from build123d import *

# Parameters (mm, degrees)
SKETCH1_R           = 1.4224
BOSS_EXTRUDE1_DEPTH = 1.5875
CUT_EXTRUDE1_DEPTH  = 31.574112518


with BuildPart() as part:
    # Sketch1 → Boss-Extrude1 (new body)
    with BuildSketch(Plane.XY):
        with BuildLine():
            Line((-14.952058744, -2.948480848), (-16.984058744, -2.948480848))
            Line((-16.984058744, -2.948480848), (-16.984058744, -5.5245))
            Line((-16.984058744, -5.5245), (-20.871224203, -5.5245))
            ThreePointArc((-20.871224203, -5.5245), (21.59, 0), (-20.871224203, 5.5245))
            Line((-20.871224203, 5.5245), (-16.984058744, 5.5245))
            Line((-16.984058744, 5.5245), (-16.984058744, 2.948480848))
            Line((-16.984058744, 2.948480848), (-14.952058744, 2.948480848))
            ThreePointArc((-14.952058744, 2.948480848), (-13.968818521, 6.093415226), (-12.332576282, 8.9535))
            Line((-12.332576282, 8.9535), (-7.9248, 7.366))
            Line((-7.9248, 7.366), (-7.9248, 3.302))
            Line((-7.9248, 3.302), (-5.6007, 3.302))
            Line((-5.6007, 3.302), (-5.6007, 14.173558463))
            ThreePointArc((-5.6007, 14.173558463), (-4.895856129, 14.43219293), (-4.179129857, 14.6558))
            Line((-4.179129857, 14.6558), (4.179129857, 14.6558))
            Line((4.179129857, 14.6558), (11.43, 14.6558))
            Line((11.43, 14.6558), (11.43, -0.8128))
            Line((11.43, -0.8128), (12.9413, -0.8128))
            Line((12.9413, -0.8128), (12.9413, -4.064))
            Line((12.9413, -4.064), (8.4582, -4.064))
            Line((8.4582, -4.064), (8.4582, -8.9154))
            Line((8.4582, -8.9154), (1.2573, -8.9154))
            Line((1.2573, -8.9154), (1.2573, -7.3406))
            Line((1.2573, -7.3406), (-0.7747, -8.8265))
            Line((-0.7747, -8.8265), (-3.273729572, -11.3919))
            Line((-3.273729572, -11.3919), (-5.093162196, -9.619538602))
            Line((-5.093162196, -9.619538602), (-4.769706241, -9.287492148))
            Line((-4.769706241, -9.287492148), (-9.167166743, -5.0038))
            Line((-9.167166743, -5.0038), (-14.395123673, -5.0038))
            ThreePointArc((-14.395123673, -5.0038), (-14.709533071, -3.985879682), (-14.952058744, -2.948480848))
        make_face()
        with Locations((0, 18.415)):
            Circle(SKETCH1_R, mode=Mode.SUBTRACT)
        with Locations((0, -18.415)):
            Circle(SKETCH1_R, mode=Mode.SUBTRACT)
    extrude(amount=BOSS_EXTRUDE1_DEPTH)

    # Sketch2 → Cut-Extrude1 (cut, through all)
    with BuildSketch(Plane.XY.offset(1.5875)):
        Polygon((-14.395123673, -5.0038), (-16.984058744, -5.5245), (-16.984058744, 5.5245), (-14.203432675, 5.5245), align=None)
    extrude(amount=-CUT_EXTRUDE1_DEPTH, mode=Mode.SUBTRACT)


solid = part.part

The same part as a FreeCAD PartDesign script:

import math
import FreeCAD as App
import Part
import Sketcher
from FreeCAD import Vector
Q = App.Units.Quantity


def add_polygon(sketch, points):
    """Adds a closed chain of lines whose ends are joined by coincident constraints."""
    first, n = sketch.GeometryCount, len(points)
    for a, b in zip(points, points[1:] + points[:1]):
        sketch.addGeometry(Part.LineSegment(App.Vector(*a, 0), App.Vector(*b, 0)), False)
    for i in range(n):
        sketch.addConstraint(Sketcher.Constraint("Coincident", first + i, 2, first + (i + 1) % n, 1))

doc = App.newDocument("Part")
params = doc.addObject("Spreadsheet::Sheet", "Params")
for row, (alias, value) in enumerate([
    ("sketch1_radius", "0.6 in"),
    ("sketch1_radius2", "0.85 in"),
    ("sketch1_diameter", "0.112 in"),
    ("sketch1_length", "0.1 in"),
    ("sketch1_width", "0.08 in"),
    ("pad1_length", "0.0625 in"),
    ("sketch2_height", "0.435 in"),
], start=1):
    params.set(f"A{row}", alias)
    params.set(f"B{row}", "=" + value)
    params.setAlias(f"B{row}", alias)

body = doc.addObject("PartDesign::Body", "Body")

# Sketch on XY plane
sketch1 = body.newObject("Sketcher::SketchObject", "Sketch")
sketch1.AttachmentSupport = (doc.getObject("XY_Plane"), [""])
sketch1.MapMode = "FlatFace"
sketch1.addGeometry([
    Part.LineSegment(Vector(-14.952059, -2.948481, 0), Vector(-16.984059, -2.948481, 0)),  # 0
    Part.LineSegment(Vector(-16.984059, -2.948481, 0), Vector(-16.984059, -5.5245, 0)),  # 1
    Part.LineSegment(Vector(-16.984059, -5.5245, 0), Vector(-20.871224, -5.5245, 0)),  # 2
    Part.ArcOfCircle(Part.Circle(Vector(0, 0, 0), Vector(0, 0, 1), 21.59), math.radians(-165.174125), math.radians(165.174125)),  # 3
    Part.LineSegment(Vector(-20.871224, 5.5245, 0), Vector(-16.984059, 5.5245, 0)),  # 4
    Part.LineSegment(Vector(-16.984059, 5.5245, 0), Vector(-16.984059, 2.948481, 0)),  # 5
    Part.LineSegment(Vector(-16.984059, 2.948481, 0), Vector(-14.952059, 2.948481, 0)),  # 6
    Part.ArcOfCircle(Part.Circle(Vector(0, 0, 0), Vector(0, 0, 1), 15.24), math.radians(144.020199), math.radians(168.844648)),  # 7
    Part.LineSegment(Vector(-12.332576, 8.9535, 0), Vector(-7.9248, 7.366, 0)),  # 8
    Part.LineSegment(Vector(-7.9248, 7.366, 0), Vector(-7.9248, 3.302, 0)),  # 9
    Part.LineSegment(Vector(-7.9248, 3.302, 0), Vector(-5.6007, 3.302, 0)),  # 10
    Part.LineSegment(Vector(-5.6007, 3.302, 0), Vector(-5.6007, 14.173558, 0)),  # 11
    Part.ArcOfCircle(Part.Circle(Vector(0, 0, 0), Vector(0, 0, 1), 15.24), math.radians(105.915603), math.radians(111.561518)),  # 12
    Part.LineSegment(Vector(-4.17913, 14.6558, 0), Vector(11.43, 14.6558, 0)),  # 13
    Part.LineSegment(Vector(11.43, 14.6558, 0), Vector(11.43, -0.8128, 0)),  # 14
    Part.LineSegment(Vector(11.43, -0.8128, 0), Vector(12.9413, -0.8128, 0)),  # 15
    Part.LineSegment(Vector(12.9413, -0.8128, 0), Vector(12.9413, -4.064, 0)),  # 16
    Part.LineSegment(Vector(12.9413, -4.064, 0), Vector(8.4582, -4.064, 0)),  # 17
    Part.LineSegment(Vector(8.4582, -4.064, 0), Vector(8.4582, -8.9154, 0)),  # 18
    Part.LineSegment(Vector(8.4582, -8.9154, 0), Vector(1.2573, -8.9154, 0)),  # 19
    Part.LineSegment(Vector(1.2573, -8.9154, 0), Vector(1.2573, -7.3406, 0)),  # 20
    Part.LineSegment(Vector(1.2573, -7.3406, 0), Vector(-0.7747, -8.8265, 0)),  # 21
    Part.LineSegment(Vector(-0.7747, -8.8265, 0), Vector(-3.27373, -11.3919, 0)),  # 22
    Part.LineSegment(Vector(-3.27373, -11.3919, 0), Vector(-5.093162, -9.619539, 0)),  # 23
    Part.LineSegment(Vector(-5.093162, -9.619539, 0), Vector(-4.769706, -9.287492, 0)),  # 24
    Part.LineSegment(Vector(-4.769706, -9.287492, 0), Vector(-9.167167, -5.0038, 0)),  # 25
    Part.LineSegment(Vector(-9.167167, -5.0038, 0), Vector(-14.395124, -5.0038, 0)),  # 26
    Part.ArcOfCircle(Part.Circle(Vector(0, 0, 0), Vector(0, 0, 1), 15.24), math.radians(-168.844648), math.radians(-160.832353)),  # 27
    Part.Circle(Vector(0, -18.415, 0), Vector(0, 0, 1), 1.4224),  # 28
    Part.Circle(Vector(0, 18.415, 0), Vector(0, 0, 1), 1.4224),  # 29
], False)
sketch1.addConstraint([
    Sketcher.Constraint("Coincident", 0, 2, 1, 1),
    Sketcher.Constraint("Coincident", 1, 2, 2, 1),
    Sketcher.Constraint("Coincident", 2, 2, 3, 1),
    Sketcher.Constraint("Coincident", 3, 2, 4, 1),
    Sketcher.Constraint("Coincident", 4, 2, 5, 1),
    Sketcher.Constraint("Coincident", 5, 2, 6, 1),
    Sketcher.Constraint("Coincident", 6, 2, 7, 2),
    Sketcher.Constraint("Coincident", 7, 1, 8, 1),
    Sketcher.Constraint("Coincident", 8, 2, 9, 1),
    Sketcher.Constraint("Coincident", 9, 2, 10, 1),
    Sketcher.Constraint("Coincident", 10, 2, 11, 1),
    Sketcher.Constraint("Coincident", 11, 2, 12, 2),
    Sketcher.Constraint("Coincident", 12, 1, 13, 1),
    Sketcher.Constraint("Coincident", 13, 2, 14, 1),
    Sketcher.Constraint("Coincident", 14, 2, 15, 1),
    Sketcher.Constraint("Coincident", 15, 2, 16, 1),
    Sketcher.Constraint("Coincident", 16, 2, 17, 1),
    Sketcher.Constraint("Coincident", 17, 2, 18, 1),
    Sketcher.Constraint("Coincident", 18, 2, 19, 1),
    Sketcher.Constraint("Coincident", 19, 2, 20, 1),
    Sketcher.Constraint("Coincident", 20, 2, 21, 1),
    Sketcher.Constraint("Coincident", 21, 2, 22, 1),
    Sketcher.Constraint("Coincident", 22, 2, 23, 1),
    Sketcher.Constraint("Coincident", 23, 2, 24, 1),
    Sketcher.Constraint("Coincident", 24, 2, 25, 1),
    Sketcher.Constraint("Coincident", 25, 2, 26, 1),
    Sketcher.Constraint("Coincident", 26, 2, 27, 2),
    Sketcher.Constraint("Coincident", 27, 1, 0, 1),
    Sketcher.Constraint("Horizontal", 0),
    Sketcher.Constraint("Vertical", 1),
    Sketcher.Constraint("Horizontal", 2),
    Sketcher.Constraint("Horizontal", 4),
    Sketcher.Constraint("Vertical", 5),
    Sketcher.Constraint("Horizontal", 6),
    Sketcher.Constraint("Vertical", 9),
    Sketcher.Constraint("Horizontal", 10),
    Sketcher.Constraint("Vertical", 11),
    Sketcher.Constraint("Horizontal", 13),
    Sketcher.Constraint("Vertical", 14),
    Sketcher.Constraint("Horizontal", 15),
    Sketcher.Constraint("Vertical", 16),
    Sketcher.Constraint("Horizontal", 17),
    Sketcher.Constraint("Vertical", 18),
    Sketcher.Constraint("Horizontal", 19),
    Sketcher.Constraint("Vertical", 20),
    Sketcher.Constraint("Horizontal", 26),
    Sketcher.Constraint("Coincident", 3, 3, -1, 1),
    Sketcher.Constraint("Coincident", 7, 3, -1, 1),
    Sketcher.Constraint("Coincident", 12, 3, -1, 1),
    Sketcher.Constraint("Coincident", 27, 3, -1, 1),
    Sketcher.Constraint("Equal", 7, 12),
    Sketcher.Constraint("Equal", 12, 27),
    Sketcher.Constraint("Equal", 28, 29),
    Sketcher.Constraint("Symmetric", 28, 3, 29, 3, -1, 1),
    Sketcher.Constraint("Symmetric", 1, 2, 4, 2, -1),
    Sketcher.Constraint("PointOnObject", 28, 3, -2),
    Sketcher.Constraint("Perpendicular", 22, 23),
    Sketcher.Constraint("Perpendicular", 23, 24),
    Sketcher.Constraint("Perpendicular", 24, 25),
    Sketcher.Constraint("Vertical", 6, 2, 27, 1),
    Sketcher.Constraint("Radius", 7, Q("0.6 in")),
    Sketcher.Constraint("Radius", 3, Q("0.85 in")),
    Sketcher.Constraint("Diameter", 28, Q("0.112 in")),
    Sketcher.Constraint("Distance", 23, Q("0.1 in")),
    Sketcher.Constraint("DistanceX", 0, 2, 0, 1, Q("0.08 in")),
    Sketcher.Constraint("DistanceY", 9, 2, 9, 1, Q("0.16 in")),
    Sketcher.Constraint("DistanceY", 14, 2, 14, 1, Q("0.609 in")),
    Sketcher.Constraint("DistanceY", 16, 2, 16, 1, Q("0.128 in")),
    Sketcher.Constraint("DistanceY", 18, 2, 18, 1, Q("0.191 in")),
    Sketcher.Constraint("DistanceY", 20, 1, 20, 2, Q("0.062 in")),
    Sketcher.Constraint("DistanceY", -1, 1, 8, 2, Q("0.29 in")),
    Sketcher.Constraint("DistanceX", -1, 1, 13, 2, Q("0.45 in")),
    Sketcher.Constraint("DistanceY", 16, 2, -1, 1, Q("0.16 in")),
    Sketcher.Constraint("DistanceY", 28, 3, 29, 3, Q("1.45 in")),
    Sketcher.Constraint("DistanceX", 21, 2, 19, 2, Q("0.08 in")),
    Sketcher.Constraint("Distance", 22, Q("0.141 in")),
    Sketcher.Constraint("DistanceX", 10, 1, 10, 2, Q("0.0915 in")),
    Sketcher.Constraint("DistanceX", 15, 1, 15, 2, Q("0.0595 in")),
    Sketcher.Constraint("DistanceX", 17, 2, 17, 1, Q("0.1765 in")),
    Sketcher.Constraint("DistanceX", 19, 2, 19, 1, Q("0.2835 in")),
    Sketcher.Constraint("DistanceX", 8, 2, -1, 1, Q("0.312 in")),
    Sketcher.Constraint("DistanceY", 25, 2, -1, 1, Q("0.197 in")),
    Sketcher.Constraint("DistanceY", 2, 2, 3, 2, Q("0.435 in")),
    Sketcher.Constraint("DistanceY", 4, 2, 7, 1, Q("0.135 in")),
    Sketcher.Constraint("DistanceY", 22, 2, 21, 2, Q("0.101 in")),
    Sketcher.Constraint("DistanceY", 21, 2, -1, 1, Q("0.3475 in")),
    Sketcher.Constraint("DistanceY", 1, 2, 1, 1, Q("2.576019 mm")),
    Sketcher.Constraint("Distance", 24, Q("0.46355 mm")),
])
sketch1.setExpression("Constraints[60]", "Params.sketch1_radius")
sketch1.setExpression("Constraints[61]", "Params.sketch1_radius2")
sketch1.setExpression("Constraints[62]", "Params.sketch1_diameter")
sketch1.setExpression("Constraints[63]", "Params.sketch1_length")
sketch1.setExpression("Constraints[64]", "Params.sketch1_width")
pad1 = body.newObject("PartDesign::Pad", "Pad")
pad1.Profile = sketch1
pad1.setExpression("Length", "Params.pad1_length")

# Sketch on XY plane
sketch2 = body.newObject("Sketcher::SketchObject", "Sketch001")
sketch2.AttachmentSupport = (doc.getObject("XY_Plane"), [""])
sketch2.MapMode = "FlatFace"
sketch2.AttachmentOffset = App.Placement(Vector(0, 0, 0.0625 * 25.4), App.Rotation())
add_polygon(sketch2, [(-16.984059, -5.5245), (-14.395124, -5.0038), (-14.203433, 5.5245), (-16.984059, 5.5245)])  # lines 0-3
sketch2.addConstraint([
    Sketcher.Constraint("Horizontal", 2),
    Sketcher.Constraint("Vertical", 3),
    Sketcher.Constraint("DistanceY", 3, 2, 3, 1, Q("0.435 in")),
    Sketcher.Constraint("DistanceY", 0, 2, -1, 1, Q("0.197 in")),
    Sketcher.Constraint("DistanceY", -1, 1, 1, 2, Q("0.2175 in")),
    Sketcher.Constraint("Distance", 0, Q("2.640779 mm")),
    Sketcher.Constraint("DistanceX", 2, 2, 2, 1, Q("2.780626 mm")),
    Sketcher.Constraint("DistanceX", 2, 2, -1, 1, Q("16.984059 mm")),
])
sketch2.setExpression("Constraints[6]", "Params.sketch2_height")
pocket1 = body.newObject("PartDesign::Pocket", "Pocket")
pocket1.Profile = sketch2
pocket1.Type = "ThroughAll"

doc.recompute()
